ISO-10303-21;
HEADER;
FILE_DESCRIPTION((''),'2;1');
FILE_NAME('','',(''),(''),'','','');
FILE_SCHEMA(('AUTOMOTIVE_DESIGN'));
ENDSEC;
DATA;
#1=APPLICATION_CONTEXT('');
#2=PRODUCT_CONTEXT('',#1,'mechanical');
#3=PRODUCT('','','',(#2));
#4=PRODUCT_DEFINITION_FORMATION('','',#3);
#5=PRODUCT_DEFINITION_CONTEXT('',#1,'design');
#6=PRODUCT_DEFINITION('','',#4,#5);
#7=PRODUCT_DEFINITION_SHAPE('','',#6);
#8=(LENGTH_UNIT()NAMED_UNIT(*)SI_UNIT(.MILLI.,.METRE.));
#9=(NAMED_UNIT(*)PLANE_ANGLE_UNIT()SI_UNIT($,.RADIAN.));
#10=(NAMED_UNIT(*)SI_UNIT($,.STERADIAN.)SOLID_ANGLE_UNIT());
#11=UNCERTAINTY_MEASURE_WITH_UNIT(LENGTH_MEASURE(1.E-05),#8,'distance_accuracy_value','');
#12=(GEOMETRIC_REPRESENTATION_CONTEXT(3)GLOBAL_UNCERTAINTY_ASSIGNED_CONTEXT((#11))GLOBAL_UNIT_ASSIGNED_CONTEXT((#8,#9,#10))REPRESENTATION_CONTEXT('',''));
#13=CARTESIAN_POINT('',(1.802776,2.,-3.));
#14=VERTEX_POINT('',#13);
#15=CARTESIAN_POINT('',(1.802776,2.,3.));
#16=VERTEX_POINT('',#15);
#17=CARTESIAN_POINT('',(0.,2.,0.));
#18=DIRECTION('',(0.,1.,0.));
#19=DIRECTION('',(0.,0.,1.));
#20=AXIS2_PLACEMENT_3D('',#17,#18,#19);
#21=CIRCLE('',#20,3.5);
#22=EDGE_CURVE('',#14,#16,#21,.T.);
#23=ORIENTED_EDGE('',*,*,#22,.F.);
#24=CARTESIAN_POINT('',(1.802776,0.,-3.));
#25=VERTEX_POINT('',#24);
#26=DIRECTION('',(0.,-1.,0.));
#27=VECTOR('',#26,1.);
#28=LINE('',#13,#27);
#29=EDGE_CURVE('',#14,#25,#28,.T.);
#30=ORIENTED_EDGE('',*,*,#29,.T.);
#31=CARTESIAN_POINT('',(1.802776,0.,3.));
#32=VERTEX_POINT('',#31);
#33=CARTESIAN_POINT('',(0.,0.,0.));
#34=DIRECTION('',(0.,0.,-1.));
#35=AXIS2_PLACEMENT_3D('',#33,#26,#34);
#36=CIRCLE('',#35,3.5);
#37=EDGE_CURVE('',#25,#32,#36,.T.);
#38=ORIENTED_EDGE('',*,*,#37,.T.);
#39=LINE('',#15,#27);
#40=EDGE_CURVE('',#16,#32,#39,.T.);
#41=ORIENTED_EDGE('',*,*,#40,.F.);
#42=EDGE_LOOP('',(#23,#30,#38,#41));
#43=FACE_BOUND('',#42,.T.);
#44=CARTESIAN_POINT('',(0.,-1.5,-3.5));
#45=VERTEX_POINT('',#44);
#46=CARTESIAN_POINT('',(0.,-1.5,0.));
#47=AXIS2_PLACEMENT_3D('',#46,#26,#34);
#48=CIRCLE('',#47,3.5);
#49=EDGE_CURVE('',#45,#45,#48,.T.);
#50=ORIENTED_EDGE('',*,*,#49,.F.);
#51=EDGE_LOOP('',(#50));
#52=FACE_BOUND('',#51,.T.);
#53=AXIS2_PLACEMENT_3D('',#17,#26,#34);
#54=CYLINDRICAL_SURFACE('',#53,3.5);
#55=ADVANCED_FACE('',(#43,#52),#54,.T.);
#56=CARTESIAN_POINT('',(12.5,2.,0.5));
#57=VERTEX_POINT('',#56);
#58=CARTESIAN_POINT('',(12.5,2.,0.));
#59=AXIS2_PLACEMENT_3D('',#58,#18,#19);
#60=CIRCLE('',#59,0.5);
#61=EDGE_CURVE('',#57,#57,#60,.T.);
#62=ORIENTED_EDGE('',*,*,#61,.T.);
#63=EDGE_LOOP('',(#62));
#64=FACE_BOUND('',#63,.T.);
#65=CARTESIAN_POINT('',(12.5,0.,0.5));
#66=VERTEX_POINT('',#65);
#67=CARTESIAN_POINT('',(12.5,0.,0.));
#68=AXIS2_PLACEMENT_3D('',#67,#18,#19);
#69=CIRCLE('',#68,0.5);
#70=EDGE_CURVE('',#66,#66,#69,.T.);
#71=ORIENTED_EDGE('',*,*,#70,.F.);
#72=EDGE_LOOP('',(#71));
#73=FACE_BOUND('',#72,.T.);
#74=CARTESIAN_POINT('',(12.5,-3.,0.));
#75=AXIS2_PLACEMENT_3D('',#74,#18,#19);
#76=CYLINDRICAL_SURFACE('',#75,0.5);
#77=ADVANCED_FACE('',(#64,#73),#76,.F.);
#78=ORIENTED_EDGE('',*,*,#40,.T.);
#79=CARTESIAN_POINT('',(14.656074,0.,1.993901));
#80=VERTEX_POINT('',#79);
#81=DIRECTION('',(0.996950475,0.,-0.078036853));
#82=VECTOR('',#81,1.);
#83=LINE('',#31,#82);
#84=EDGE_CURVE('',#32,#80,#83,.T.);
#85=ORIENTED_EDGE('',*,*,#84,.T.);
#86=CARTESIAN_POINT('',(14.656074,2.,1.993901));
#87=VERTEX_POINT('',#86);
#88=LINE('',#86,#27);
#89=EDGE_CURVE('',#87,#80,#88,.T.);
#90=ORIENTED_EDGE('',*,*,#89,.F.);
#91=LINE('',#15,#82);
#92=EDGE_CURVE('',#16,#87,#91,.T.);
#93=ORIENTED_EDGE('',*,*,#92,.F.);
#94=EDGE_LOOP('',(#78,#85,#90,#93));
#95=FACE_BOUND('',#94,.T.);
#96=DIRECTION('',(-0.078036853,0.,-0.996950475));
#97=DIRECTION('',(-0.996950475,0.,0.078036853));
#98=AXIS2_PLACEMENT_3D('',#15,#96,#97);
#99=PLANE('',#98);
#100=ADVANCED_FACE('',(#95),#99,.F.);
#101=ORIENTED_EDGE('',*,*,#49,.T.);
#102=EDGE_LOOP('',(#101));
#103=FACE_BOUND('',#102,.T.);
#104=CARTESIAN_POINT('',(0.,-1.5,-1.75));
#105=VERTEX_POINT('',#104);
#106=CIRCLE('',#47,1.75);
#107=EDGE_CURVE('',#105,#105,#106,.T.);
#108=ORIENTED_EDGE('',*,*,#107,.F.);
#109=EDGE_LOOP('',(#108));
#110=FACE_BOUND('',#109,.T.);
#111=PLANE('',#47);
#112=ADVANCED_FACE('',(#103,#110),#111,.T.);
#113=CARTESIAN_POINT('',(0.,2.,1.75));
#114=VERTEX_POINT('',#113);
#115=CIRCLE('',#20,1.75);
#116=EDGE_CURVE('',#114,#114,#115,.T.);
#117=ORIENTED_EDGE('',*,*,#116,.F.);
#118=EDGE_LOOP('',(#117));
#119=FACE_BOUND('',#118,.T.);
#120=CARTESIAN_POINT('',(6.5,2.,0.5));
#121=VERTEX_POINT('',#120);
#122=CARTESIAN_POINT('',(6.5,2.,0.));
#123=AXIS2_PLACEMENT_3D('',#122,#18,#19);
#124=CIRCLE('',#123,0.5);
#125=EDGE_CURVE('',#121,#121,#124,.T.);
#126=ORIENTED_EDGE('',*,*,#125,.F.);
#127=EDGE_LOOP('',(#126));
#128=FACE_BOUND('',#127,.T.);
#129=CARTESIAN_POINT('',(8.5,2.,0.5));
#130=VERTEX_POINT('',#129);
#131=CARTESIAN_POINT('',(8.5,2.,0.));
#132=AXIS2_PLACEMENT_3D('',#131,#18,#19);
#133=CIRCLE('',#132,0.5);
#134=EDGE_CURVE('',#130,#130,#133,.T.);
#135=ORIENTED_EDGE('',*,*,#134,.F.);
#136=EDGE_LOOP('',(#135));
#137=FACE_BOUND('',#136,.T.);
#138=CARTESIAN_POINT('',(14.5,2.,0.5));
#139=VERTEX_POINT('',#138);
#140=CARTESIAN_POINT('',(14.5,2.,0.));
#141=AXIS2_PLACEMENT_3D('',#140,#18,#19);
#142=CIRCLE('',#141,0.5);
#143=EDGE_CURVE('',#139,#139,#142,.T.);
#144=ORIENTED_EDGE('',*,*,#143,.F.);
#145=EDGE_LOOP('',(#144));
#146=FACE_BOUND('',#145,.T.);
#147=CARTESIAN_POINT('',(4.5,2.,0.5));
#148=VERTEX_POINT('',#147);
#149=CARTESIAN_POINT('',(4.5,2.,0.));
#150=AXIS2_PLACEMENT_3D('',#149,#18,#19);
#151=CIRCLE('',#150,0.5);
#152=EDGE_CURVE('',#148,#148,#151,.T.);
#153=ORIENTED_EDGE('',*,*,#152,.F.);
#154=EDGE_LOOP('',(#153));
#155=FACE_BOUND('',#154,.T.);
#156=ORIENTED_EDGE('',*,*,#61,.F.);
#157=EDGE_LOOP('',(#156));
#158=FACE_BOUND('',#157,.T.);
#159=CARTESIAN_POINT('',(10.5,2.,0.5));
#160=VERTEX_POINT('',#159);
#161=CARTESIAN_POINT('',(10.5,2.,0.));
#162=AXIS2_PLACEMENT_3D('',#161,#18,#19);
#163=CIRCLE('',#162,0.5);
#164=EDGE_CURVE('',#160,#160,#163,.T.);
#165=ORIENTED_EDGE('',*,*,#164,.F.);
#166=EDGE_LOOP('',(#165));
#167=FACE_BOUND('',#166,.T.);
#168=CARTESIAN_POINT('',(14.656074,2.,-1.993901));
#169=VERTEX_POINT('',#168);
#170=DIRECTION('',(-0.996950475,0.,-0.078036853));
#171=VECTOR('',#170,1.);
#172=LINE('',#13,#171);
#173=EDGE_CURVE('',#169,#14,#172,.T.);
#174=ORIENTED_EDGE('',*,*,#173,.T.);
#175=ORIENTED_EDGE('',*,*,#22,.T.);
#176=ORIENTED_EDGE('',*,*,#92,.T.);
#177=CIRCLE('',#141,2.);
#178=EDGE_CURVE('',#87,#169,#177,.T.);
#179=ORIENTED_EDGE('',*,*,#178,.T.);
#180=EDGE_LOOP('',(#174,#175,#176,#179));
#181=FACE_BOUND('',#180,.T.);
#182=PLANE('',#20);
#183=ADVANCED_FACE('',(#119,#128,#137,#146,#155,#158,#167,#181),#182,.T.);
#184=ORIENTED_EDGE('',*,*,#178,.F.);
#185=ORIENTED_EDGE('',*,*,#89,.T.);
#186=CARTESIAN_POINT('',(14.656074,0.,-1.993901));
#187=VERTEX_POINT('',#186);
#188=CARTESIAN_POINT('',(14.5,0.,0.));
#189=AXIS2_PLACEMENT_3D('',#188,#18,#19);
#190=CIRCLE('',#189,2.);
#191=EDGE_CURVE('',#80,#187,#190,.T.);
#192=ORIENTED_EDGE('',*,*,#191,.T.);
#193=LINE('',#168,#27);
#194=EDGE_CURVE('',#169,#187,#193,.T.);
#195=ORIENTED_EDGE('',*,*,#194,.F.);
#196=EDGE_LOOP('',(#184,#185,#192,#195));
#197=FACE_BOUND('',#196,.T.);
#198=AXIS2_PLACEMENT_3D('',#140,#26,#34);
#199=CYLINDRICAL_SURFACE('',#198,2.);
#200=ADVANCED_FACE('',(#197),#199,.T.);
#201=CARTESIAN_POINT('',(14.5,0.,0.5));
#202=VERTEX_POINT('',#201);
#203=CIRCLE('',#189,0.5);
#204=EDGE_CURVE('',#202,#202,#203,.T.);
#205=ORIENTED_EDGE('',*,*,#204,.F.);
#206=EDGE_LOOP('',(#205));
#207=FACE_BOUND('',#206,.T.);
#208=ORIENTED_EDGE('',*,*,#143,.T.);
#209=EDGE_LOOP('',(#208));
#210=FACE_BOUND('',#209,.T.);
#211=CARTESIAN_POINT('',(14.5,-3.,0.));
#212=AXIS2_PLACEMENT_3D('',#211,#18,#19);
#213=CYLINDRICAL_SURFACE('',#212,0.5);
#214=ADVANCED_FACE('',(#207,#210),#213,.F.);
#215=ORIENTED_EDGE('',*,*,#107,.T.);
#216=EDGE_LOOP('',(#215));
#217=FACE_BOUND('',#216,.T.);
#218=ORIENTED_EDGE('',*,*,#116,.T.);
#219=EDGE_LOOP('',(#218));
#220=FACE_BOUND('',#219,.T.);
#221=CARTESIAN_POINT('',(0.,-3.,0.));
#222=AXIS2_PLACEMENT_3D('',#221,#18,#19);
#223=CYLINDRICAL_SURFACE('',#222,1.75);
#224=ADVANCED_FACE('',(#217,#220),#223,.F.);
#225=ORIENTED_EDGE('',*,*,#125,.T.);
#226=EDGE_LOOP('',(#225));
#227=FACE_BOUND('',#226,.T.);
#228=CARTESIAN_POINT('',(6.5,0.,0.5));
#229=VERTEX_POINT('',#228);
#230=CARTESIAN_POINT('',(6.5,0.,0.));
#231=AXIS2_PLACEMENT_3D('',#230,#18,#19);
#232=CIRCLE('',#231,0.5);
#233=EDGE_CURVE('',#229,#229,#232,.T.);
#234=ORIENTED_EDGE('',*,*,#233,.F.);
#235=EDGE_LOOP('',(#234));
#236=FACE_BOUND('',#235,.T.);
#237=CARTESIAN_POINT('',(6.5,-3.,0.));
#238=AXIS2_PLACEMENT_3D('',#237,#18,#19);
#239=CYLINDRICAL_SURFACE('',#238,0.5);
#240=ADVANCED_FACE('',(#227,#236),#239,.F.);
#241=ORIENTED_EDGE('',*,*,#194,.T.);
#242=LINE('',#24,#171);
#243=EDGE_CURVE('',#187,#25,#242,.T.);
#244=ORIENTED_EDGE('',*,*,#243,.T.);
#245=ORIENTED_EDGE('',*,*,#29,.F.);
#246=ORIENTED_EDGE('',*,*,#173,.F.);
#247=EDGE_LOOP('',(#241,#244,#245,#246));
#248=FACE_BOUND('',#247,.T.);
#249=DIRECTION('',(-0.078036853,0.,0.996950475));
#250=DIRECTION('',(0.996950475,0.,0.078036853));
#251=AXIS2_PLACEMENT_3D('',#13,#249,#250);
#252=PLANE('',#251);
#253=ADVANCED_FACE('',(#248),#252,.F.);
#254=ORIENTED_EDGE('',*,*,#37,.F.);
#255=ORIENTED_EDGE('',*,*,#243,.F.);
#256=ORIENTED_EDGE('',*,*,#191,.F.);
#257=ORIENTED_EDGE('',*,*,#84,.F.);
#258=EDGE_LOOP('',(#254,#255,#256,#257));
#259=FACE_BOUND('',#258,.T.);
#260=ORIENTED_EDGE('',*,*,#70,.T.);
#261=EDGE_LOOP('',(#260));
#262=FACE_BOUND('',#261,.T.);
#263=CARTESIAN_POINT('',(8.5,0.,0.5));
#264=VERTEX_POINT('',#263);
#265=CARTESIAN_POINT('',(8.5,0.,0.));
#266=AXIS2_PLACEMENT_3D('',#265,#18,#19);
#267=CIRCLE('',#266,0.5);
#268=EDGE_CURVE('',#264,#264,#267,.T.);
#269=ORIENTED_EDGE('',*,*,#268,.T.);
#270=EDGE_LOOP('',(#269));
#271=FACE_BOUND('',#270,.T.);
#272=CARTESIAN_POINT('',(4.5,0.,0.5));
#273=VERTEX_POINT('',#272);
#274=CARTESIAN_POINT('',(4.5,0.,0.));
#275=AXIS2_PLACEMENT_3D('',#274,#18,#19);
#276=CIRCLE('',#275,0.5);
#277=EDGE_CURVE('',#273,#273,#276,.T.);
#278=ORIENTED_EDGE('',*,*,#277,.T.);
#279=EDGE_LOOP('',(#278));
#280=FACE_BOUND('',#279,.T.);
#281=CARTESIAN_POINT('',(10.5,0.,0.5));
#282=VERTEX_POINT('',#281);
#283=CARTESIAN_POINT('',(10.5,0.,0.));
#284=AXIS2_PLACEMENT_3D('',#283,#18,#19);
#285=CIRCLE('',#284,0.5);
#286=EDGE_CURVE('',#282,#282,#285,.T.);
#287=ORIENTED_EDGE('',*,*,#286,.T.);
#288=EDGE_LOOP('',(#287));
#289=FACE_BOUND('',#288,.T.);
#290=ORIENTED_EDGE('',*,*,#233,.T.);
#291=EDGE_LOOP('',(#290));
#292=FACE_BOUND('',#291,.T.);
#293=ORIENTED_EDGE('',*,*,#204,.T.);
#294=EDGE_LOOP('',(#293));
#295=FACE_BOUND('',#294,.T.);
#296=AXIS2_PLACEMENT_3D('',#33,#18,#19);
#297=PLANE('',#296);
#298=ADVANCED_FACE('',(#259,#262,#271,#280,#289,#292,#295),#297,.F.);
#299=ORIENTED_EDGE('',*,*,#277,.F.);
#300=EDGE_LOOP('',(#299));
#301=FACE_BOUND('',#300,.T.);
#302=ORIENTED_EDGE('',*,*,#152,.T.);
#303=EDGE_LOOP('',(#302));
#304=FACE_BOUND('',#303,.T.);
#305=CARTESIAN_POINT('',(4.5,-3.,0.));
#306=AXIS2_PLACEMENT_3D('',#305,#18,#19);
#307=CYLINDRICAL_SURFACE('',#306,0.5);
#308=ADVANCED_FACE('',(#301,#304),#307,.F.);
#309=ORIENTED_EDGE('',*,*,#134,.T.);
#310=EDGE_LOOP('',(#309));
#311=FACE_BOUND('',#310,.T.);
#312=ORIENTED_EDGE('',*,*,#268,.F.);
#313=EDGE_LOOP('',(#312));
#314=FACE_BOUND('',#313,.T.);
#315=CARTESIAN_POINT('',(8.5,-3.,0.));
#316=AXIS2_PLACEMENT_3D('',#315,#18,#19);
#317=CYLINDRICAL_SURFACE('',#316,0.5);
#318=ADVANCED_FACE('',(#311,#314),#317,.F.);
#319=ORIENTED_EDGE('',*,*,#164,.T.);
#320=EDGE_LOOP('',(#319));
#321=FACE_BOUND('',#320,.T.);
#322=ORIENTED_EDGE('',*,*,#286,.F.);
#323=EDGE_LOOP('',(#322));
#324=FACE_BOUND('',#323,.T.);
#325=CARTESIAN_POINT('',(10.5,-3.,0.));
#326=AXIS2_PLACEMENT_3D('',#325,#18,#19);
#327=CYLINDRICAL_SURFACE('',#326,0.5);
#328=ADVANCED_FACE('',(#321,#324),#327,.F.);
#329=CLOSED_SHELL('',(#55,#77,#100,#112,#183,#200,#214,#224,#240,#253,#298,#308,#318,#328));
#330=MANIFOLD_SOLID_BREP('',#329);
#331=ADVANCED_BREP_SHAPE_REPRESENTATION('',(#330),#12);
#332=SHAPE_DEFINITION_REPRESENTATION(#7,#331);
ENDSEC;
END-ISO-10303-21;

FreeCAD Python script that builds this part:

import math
import FreeCAD as App
import Part
import Sketcher

V = App.Vector
Q = App.Units.Quantity

doc = App.newDocument("Part")
body = doc.addObject("PartDesign::Body", "Body")

# Sketch on XZ plane
sketch1 = body.newObject("Sketcher::SketchObject", "Sketch")
sketch1.AttachmentSupport = (doc.getObject("XZ_Plane"), [""])
sketch1.MapMode = "FlatFace"
sketch1.addGeometry(Part.LineSegment(V(14.656074, -1.993901, 0), V(1.802776, -3, 0)), False)
sketch1.addGeometry(Part.ArcOfCircle(Part.Circle(V(0, 0, 0), V(0, 0, 1), 3.5), math.radians(58.997281), math.radians(301.002719)), False)
sketch1.addGeometry(Part.LineSegment(V(1.802776, 3, 0), V(14.656074, 1.993901, 0)), False)
sketch1.addGeometry(Part.ArcOfCircle(Part.Circle(V(14.5, 0, 0), V(0, 0, 1), 2), math.radians(-85.524267), math.radians(85.524267)), False)
sketch1.addConstraint(Sketcher.Constraint("Coincident", 0, 2, 1, 2))
sketch1.addConstraint(Sketcher.Constraint("Coincident", 1, 1, 2, 1))
sketch1.addConstraint(Sketcher.Constraint("Tangent", 2, 2, 3, 2))
sketch1.addConstraint(Sketcher.Constraint("Tangent", 3, 1, 0, 1))
sketch1.addConstraint(Sketcher.Constraint("Coincident", 1, 3, -1, 1))
sketch1.addConstraint(Sketcher.Constraint("Symmetric", 2, 2, 3, 1, -1))
sketch1.addConstraint(Sketcher.Constraint("Radius", 3, Q("2 mm")))
sketch1.addConstraint(Sketcher.Constraint("Radius", 1, Q("3.5 mm")))
sketch1.addConstraint(Sketcher.Constraint("DistanceY", 0, 2, -1, 1, Q("3 mm")))
sketch1.addConstraint(Sketcher.Constraint("DistanceX", -1, 1, 3, 3, Q("14.5 mm")))
pad1 = body.newObject("PartDesign::Pad", "Pad")
pad1.Profile = sketch1
pad1.Length = 2
pad1.Reversed = True

# Sketch on XZ plane
sketch2 = body.newObject("Sketcher::SketchObject", "Sketch001")
sketch2.AttachmentSupport = (doc.getObject("XZ_Plane"), [""])
sketch2.MapMode = "FlatFace"
sketch2.AttachmentOffset = App.Placement(V(0, 0, 1.5), App.Rotation())
sketch2.addGeometry(Part.Circle(V(0, 0, 0), V(0, 0, 1), 3.5), False)
sketch2.addConstraint(Sketcher.Constraint("Coincident", 0, 3, -1, 1))
sketch2.addConstraint(Sketcher.Constraint("Diameter", 0, Q("7 mm")))
pad2 = body.newObject("PartDesign::Pad", "Pad001")
pad2.Profile = sketch2
pad2.Length = 1.5
pad2.Reversed = True

# Sketch on XZ plane
sketch3 = body.newObject("Sketcher::SketchObject", "Sketch002")
sketch3.AttachmentSupport = (doc.getObject("XZ_Plane"), [""])
sketch3.MapMode = "FlatFace"
sketch3.AttachmentOffset = App.Placement(V(0, 0, -2), App.Rotation())
sketch3.addGeometry(Part.Circle(V(0, 0, 0), V(0, 0, 1), 1.75), False)
sketch3.addConstraint(Sketcher.Constraint("Coincident", 0, 3, -1, 1))
sketch3.addConstraint(Sketcher.Constraint("Diameter", 0, Q("3.5 mm")))
pocket1 = body.newObject("PartDesign::Pocket", "Pocket")
pocket1.Profile = sketch3
pocket1.Length = 5
pocket1.Reversed = True

# Sketch on XZ plane
sketch4 = body.newObject("Sketcher::SketchObject", "Sketch003")
sketch4.AttachmentSupport = (doc.getObject("XZ_Plane"), [""])
sketch4.MapMode = "FlatFace"
sketch4.AttachmentOffset = App.Placement(V(0, 0, -2), App.Rotation())
sketch4.addGeometry(Part.Circle(V(4.5, 0, 0), V(0, 0, 1), 0.5), False)
sketch4.addGeometry(Part.Circle(V(6.5, 0, 0), V(0, 0, 1), 0.5), False)
sketch4.addGeometry(Part.Circle(V(8.5, 0, 0), V(0, 0, 1), 0.5), False)
sketch4.addGeometry(Part.Circle(V(10.5, 0, 0), V(0, 0, 1), 0.5), False)
sketch4.addGeometry(Part.Circle(V(12.5, 0, 0), V(0, 0, 1), 0.5), False)
sketch4.addGeometry(Part.Circle(V(14.5, 0, 0), V(0, 0, 1), 0.5), False)
sketch4.addConstraint(Sketcher.Constraint("Equal", 0, 1))
sketch4.addConstraint(Sketcher.Constraint("Equal", 1, 2))
sketch4.addConstraint(Sketcher.Constraint("Equal", 2, 3))
sketch4.addConstraint(Sketcher.Constraint("Equal", 3, 4))
sketch4.addConstraint(Sketcher.Constraint("Equal", 4, 5))
sketch4.addConstraint(Sketcher.Constraint("PointOnObject", 0, 3, -1))
sketch4.addConstraint(Sketcher.Constraint("PointOnObject", 1, 3, -1))
sketch4.addConstraint(Sketcher.Constraint("PointOnObject", 2, 3, -1))
sketch4.addConstraint(Sketcher.Constraint("PointOnObject", 3, 3, -1))
sketch4.addConstraint(Sketcher.Constraint("PointOnObject", 4, 3, -1))
sketch4.addConstraint(Sketcher.Constraint("PointOnObject", 5, 3, -1))
sketch4.addConstraint(Sketcher.Constraint("Diameter", 0, Q("1 mm")))
sketch4.addConstraint(Sketcher.Constraint("DistanceX", 0, 3, 1, 3, Q("2 mm")))
sketch4.addConstraint(Sketcher.Constraint("DistanceX", 1, 3, 2, 3, Q("2 mm")))
sketch4.addConstraint(Sketcher.Constraint("DistanceX", 2, 3, 3, 3, Q("2 mm")))
sketch4.addConstraint(Sketcher.Constraint("DistanceX", 3, 3, 4, 3, Q("2 mm")))
sketch4.addConstraint(Sketcher.Constraint("DistanceX", 4, 3, 5, 3, Q("2 mm")))
sketch4.addConstraint(Sketcher.Constraint("DistanceX", -1, 1, 0, 3, Q("4.5 mm")))
pocket2 = body.newObject("PartDesign::Pocket", "Pocket001")
pocket2.Profile = sketch4
pocket2.Length = 5
pocket2.Reversed = True

doc.recompute()
